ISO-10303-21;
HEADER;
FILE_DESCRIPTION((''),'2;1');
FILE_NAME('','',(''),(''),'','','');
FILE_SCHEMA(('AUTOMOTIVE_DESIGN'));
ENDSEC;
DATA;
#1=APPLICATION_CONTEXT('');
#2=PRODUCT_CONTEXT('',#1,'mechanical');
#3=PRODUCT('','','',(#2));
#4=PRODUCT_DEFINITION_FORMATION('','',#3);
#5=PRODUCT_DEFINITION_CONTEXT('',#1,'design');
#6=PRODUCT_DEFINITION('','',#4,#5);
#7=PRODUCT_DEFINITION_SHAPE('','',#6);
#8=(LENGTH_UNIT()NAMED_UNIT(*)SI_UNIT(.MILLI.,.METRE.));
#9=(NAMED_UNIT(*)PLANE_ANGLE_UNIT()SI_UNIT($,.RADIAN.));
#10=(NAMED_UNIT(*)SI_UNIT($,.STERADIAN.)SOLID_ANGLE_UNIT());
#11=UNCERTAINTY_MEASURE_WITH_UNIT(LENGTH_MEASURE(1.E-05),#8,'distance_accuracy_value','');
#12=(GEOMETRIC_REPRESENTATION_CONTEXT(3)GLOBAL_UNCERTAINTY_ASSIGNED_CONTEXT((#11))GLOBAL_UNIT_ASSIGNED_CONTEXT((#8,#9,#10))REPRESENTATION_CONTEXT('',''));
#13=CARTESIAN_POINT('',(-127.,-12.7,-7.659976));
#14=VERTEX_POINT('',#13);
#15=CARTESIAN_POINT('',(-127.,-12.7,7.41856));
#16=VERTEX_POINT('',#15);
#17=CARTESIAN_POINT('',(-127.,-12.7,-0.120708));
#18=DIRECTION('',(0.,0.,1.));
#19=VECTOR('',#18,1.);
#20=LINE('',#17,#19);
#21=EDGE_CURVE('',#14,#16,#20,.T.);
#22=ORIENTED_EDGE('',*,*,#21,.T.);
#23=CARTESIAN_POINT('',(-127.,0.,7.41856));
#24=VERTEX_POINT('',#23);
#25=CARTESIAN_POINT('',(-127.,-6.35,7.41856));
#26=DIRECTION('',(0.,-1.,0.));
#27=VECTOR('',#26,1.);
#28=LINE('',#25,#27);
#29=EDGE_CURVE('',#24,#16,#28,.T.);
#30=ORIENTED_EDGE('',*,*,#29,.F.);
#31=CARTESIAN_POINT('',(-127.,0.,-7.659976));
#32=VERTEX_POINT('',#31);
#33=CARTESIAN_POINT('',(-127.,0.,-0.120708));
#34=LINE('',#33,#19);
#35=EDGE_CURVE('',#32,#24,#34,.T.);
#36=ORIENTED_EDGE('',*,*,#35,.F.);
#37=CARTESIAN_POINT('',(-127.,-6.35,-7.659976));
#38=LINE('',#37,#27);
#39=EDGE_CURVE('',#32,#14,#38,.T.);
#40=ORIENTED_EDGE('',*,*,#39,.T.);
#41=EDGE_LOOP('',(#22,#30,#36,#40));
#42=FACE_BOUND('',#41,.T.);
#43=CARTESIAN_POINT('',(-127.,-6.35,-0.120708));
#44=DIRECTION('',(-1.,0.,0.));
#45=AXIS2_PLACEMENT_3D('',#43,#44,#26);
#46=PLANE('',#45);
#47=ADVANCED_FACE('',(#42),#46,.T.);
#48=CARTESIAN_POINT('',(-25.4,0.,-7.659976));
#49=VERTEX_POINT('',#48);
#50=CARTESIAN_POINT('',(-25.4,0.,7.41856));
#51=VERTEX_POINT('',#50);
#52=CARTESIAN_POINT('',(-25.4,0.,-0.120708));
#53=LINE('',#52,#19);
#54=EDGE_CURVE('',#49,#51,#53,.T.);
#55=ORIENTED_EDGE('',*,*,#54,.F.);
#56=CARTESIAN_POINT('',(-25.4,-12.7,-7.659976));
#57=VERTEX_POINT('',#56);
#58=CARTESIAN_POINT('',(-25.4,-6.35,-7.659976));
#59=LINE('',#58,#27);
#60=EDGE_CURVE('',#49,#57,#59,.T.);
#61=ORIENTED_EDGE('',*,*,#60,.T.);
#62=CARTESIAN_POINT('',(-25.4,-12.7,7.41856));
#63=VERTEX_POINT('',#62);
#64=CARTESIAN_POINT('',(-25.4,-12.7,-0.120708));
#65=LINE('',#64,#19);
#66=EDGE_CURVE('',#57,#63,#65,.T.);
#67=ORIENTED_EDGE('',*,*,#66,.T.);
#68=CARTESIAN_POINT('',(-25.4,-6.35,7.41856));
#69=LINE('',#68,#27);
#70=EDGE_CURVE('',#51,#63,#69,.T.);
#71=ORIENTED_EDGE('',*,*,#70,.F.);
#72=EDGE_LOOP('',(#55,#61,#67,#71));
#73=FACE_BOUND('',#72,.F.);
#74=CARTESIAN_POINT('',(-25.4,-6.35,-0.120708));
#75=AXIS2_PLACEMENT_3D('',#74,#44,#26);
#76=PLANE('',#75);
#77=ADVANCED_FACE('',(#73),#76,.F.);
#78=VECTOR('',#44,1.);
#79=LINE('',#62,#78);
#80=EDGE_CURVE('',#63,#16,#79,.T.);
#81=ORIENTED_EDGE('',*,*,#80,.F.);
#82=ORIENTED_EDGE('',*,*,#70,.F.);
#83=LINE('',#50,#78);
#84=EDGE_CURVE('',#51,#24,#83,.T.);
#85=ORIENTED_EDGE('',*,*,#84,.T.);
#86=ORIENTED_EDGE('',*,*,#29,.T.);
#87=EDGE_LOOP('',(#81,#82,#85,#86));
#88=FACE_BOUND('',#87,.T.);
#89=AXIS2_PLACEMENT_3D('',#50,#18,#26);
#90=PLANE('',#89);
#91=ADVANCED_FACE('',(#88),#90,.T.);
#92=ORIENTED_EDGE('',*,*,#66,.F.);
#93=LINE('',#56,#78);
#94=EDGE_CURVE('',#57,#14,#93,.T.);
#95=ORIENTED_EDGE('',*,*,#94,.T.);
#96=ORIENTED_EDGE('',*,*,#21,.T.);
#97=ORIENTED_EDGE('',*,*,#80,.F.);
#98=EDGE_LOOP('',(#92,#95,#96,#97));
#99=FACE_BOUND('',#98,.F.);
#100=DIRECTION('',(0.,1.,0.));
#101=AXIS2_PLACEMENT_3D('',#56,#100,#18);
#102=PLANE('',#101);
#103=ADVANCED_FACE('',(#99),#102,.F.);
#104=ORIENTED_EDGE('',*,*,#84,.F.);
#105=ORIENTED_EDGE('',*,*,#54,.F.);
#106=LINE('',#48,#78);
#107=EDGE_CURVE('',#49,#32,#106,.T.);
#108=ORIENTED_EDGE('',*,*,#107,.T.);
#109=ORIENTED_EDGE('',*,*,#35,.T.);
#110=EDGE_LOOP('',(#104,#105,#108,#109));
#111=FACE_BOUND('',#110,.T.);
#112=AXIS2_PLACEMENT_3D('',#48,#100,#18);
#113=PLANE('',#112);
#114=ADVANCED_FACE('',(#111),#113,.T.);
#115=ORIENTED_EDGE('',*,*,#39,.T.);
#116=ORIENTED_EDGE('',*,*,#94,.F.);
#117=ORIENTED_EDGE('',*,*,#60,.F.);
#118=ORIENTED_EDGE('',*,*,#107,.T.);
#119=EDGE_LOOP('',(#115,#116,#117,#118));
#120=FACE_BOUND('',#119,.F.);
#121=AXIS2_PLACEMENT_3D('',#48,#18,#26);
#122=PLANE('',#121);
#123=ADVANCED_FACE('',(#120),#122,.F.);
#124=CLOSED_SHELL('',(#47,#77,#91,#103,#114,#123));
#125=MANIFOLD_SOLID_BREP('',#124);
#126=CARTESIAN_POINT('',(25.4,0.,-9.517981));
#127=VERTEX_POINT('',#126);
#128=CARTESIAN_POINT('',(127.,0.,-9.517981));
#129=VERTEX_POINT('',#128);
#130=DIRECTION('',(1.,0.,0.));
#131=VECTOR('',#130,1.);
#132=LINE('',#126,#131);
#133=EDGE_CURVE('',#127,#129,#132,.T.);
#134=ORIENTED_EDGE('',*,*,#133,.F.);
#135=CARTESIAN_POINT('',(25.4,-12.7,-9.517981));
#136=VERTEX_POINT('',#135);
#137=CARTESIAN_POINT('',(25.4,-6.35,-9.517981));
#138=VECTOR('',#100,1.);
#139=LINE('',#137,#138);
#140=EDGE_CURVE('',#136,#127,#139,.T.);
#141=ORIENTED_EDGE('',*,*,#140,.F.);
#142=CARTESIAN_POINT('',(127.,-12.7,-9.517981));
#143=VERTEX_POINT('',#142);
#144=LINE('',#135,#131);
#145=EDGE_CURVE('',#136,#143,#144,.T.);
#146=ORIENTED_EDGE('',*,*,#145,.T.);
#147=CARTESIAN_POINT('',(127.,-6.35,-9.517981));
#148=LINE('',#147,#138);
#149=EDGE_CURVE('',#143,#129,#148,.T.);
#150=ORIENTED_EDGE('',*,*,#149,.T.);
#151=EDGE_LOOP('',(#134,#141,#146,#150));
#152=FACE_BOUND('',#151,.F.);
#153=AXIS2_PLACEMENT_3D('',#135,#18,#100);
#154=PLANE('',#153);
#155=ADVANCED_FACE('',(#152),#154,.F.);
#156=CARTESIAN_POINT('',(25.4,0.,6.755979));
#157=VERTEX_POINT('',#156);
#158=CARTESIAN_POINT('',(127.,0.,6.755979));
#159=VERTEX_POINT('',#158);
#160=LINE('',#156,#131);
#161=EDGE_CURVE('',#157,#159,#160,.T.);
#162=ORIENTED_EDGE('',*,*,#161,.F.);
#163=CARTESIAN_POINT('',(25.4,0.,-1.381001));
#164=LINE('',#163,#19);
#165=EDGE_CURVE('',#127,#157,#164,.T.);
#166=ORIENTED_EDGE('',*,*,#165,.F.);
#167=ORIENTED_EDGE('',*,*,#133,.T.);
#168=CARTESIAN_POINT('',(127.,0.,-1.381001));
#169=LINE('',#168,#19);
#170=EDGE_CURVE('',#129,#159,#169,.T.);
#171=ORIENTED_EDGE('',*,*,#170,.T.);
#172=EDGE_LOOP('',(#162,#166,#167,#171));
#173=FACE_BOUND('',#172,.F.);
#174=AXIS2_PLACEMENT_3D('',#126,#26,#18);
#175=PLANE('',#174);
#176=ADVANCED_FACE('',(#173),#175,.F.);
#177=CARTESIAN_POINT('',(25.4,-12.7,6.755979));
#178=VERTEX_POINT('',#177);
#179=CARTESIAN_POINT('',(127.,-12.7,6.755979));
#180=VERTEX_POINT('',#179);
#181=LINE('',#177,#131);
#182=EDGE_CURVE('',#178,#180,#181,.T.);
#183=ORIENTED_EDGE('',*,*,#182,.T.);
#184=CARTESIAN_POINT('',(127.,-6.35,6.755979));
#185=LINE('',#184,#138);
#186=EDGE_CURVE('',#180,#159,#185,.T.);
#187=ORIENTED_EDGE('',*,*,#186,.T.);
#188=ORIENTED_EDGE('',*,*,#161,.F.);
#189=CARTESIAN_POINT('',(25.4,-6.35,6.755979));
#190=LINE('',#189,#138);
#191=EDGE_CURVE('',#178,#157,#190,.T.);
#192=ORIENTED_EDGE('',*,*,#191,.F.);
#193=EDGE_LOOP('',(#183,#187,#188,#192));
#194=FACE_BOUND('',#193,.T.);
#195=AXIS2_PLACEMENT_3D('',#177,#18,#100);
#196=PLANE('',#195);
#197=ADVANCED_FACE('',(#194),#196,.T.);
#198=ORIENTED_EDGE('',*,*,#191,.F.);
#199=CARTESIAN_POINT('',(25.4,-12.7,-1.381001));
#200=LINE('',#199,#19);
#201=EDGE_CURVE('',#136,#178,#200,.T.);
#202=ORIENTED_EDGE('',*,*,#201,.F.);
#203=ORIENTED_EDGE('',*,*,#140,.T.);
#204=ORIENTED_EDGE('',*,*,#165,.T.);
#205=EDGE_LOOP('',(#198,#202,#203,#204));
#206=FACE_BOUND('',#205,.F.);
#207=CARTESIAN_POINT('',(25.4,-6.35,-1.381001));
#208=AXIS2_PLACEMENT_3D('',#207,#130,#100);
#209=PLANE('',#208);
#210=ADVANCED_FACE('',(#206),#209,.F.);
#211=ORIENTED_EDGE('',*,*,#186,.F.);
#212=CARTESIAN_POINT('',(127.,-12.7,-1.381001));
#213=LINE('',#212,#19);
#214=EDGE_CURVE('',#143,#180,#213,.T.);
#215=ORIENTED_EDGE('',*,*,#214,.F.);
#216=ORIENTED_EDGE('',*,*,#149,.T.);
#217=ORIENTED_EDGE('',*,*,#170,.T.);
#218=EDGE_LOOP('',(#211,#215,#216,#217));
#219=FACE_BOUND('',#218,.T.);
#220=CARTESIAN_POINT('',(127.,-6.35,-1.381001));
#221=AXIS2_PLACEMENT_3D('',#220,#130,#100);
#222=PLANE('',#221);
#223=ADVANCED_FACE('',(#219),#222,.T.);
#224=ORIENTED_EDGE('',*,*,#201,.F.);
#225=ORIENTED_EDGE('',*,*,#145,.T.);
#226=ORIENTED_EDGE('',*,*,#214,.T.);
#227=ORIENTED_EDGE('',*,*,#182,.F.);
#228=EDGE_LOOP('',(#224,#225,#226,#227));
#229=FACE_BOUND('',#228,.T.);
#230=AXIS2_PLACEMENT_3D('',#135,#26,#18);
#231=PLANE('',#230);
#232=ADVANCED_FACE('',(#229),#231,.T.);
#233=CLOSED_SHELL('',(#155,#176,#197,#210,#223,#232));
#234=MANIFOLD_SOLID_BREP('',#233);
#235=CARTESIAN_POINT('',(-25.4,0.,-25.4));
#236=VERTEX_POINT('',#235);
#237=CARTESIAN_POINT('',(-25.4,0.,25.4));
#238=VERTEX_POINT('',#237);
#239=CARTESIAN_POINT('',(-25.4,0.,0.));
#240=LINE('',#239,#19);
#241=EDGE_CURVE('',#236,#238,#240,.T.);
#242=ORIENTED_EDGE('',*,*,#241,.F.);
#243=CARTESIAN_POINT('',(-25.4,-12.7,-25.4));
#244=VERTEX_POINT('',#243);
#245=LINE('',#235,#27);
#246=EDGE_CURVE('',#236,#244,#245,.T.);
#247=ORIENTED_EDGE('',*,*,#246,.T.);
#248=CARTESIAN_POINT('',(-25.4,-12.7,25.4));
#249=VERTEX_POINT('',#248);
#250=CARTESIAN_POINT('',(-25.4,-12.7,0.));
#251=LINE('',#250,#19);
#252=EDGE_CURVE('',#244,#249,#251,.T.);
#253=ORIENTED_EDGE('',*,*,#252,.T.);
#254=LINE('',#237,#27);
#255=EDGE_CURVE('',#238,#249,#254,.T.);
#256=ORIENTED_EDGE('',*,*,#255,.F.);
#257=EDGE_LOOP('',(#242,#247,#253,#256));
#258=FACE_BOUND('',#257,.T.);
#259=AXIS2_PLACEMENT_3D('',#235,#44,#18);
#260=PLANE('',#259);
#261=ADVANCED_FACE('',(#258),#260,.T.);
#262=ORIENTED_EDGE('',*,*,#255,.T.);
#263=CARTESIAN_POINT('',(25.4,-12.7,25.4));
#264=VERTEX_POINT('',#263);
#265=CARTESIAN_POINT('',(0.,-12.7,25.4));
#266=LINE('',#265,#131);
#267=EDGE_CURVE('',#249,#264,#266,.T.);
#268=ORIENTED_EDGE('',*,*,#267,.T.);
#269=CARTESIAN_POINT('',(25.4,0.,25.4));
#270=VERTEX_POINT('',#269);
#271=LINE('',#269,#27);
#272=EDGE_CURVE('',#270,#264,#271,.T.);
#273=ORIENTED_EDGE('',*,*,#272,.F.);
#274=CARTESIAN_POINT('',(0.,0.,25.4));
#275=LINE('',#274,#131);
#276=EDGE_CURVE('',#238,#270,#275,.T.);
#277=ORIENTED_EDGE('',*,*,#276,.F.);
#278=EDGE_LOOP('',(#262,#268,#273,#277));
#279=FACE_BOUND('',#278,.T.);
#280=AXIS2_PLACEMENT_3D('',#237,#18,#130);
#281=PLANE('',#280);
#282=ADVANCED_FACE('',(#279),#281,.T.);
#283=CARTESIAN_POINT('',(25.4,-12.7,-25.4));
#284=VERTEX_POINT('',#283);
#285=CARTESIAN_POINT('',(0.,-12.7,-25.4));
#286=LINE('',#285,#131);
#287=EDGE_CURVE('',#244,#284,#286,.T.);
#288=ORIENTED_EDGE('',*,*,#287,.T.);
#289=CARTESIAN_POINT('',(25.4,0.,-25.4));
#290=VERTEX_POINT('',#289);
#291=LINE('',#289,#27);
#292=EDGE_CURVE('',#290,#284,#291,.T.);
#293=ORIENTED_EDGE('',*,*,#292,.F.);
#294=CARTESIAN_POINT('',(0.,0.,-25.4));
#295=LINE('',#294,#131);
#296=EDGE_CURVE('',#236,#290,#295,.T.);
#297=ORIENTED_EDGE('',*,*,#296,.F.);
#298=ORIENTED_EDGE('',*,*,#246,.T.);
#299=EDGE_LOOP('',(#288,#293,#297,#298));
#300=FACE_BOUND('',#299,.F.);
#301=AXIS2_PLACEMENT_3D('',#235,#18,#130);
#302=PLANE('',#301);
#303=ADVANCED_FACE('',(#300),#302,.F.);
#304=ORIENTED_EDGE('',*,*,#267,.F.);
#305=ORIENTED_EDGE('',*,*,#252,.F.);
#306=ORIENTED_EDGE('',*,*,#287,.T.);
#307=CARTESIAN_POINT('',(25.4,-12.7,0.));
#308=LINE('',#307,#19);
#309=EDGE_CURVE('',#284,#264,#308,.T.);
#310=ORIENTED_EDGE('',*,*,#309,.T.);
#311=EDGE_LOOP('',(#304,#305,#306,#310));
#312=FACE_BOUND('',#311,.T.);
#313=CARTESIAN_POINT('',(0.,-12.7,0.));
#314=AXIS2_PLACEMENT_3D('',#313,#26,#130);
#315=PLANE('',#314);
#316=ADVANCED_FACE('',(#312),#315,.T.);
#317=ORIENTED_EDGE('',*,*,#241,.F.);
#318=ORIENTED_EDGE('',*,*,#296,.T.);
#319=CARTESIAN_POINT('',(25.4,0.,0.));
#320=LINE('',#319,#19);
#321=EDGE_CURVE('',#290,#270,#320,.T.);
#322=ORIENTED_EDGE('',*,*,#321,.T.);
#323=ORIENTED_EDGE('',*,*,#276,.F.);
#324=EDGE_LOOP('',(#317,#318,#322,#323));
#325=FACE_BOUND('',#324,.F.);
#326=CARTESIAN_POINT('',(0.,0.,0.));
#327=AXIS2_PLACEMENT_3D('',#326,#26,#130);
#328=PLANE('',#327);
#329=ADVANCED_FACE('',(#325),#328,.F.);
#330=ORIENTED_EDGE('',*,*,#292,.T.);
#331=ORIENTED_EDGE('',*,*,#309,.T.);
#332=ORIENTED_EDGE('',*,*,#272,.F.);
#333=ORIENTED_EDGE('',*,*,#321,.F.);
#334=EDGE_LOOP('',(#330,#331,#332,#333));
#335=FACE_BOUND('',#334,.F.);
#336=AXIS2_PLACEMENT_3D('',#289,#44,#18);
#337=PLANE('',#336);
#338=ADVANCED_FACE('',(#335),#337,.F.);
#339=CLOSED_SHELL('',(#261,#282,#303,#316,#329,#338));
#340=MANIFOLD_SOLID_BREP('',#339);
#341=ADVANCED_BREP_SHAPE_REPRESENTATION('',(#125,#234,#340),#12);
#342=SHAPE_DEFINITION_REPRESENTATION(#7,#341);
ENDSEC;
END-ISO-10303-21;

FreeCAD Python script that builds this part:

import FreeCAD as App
import Part
import Sketcher
Q = App.Units.Quantity


def add_polygon(sketch, points):
    """Adds a closed chain of lines whose ends are joined by coincident constraints."""
    first, n = sketch.GeometryCount, len(points)
    for a, b in zip(points, points[1:] + points[:1]):
        sketch.addGeometry(Part.LineSegment(App.Vector(*a, 0), App.Vector(*b, 0)), False)
    for i in range(n):
        sketch.addConstraint(Sketcher.Constraint("Coincident", first + i, 2, first + (i + 1) % n, 1))

doc = App.newDocument("Part")
body = doc.addObject("PartDesign::Body", "Body")

# Sketch on XZ plane
sketch1 = body.newObject("Sketcher::SketchObject", "Sketch")
sketch1.AttachmentSupport = (doc.getObject("XZ_Plane"), [""])
sketch1.MapMode = "FlatFace"
add_polygon(sketch1, [(-25, 25), (-25, -25), (25, -25), (25, 25)])  # lines 0-3
sketch1.addConstraint([
    Sketcher.Constraint("Vertical", 0),
    Sketcher.Constraint("Horizontal", 1),
    Sketcher.Constraint("Vertical", 2),
    Sketcher.Constraint("Horizontal", 3),
    Sketcher.Constraint("Symmetric", 0, 2, 2, 2, -1, 1),
    Sketcher.Constraint("Equal", 3, 0),
    Sketcher.Constraint("DistanceX", 1, 1, 1, 2, Q("2 in")),
])
pad1 = body.newObject("PartDesign::Pad", "Pad")
pad1.Profile = sketch1
pad1.Length = Q("0.5 in")
body2 = doc.addObject("PartDesign::Body", "Body001")

# Sketch on YZ plane
sketch2 = body2.newObject("Sketcher::SketchObject", "Sketch001")
sketch2.AttachmentSupport = (doc.getObject("YZ_Plane001"), [""])
sketch2.MapMode = "FlatFace"
sketch2.AttachmentOffset = App.Placement(App.Vector(0, 0, -1 * 25.4), App.Rotation())
add_polygon(sketch2, [(0, 7), (0, -8), (-13, -8), (-13, 7)])  # lines 0-3
sketch2.addConstraint([
    Sketcher.Constraint("Vertical", 0),
    Sketcher.Constraint("Horizontal", 1),
    Sketcher.Constraint("Vertical", 2),
    Sketcher.Constraint("Horizontal", 3),
    Sketcher.Constraint("PointOnObject", 0, 2, -2),
    Sketcher.Constraint("DistanceX", 1, 2, 1, 1, Q("0.5 in")),
    Sketcher.Constraint("DistanceY", 0, 2, 0, 1, Q("15.078536 mm")),
    Sketcher.Constraint("DistanceY", -1, 1, 2, 2, Q("7.41856 mm")),
])
pad2 = body2.newObject("PartDesign::Pad", "Pad001")
pad2.Profile = sketch2
pad2.Length = Q("4 in")
pad2.Reversed = True
body3 = doc.addObject("PartDesign::Body", "Body002")

# Sketch on YZ plane
sketch3 = body3.newObject("Sketcher::SketchObject", "Sketch002")
sketch3.AttachmentSupport = (doc.getObject("YZ_Plane002"), [""])
sketch3.MapMode = "FlatFace"
sketch3.AttachmentOffset = App.Placement(App.Vector(0, 0, 1 * 25.4), App.Rotation())
add_polygon(sketch3, [(-13, 7), (-13, -10), (0, -10), (0, 7)])  # lines 0-3
sketch3.addConstraint([
    Sketcher.Constraint("Vertical", 0),
    Sketcher.Constraint("Horizontal", 1),
    Sketcher.Constraint("Vertical", 2),
    Sketcher.Constraint("Horizontal", 3),
    Sketcher.Constraint("PointOnObject", 1, 2, -2),
    Sketcher.Constraint("DistanceX", 1, 1, 1, 2, Q("0.5 in")),
    Sketcher.Constraint("DistanceY", 0, 2, 0, 1, Q("16.273961 mm")),
    Sketcher.Constraint("DistanceY", 0, 2, -1, 1, Q("9.517981 mm")),
])
pad3 = body3.newObject("PartDesign::Pad", "Pad002")
pad3.Profile = sketch3
pad3.Length = Q("4 in")

doc.recompute()
